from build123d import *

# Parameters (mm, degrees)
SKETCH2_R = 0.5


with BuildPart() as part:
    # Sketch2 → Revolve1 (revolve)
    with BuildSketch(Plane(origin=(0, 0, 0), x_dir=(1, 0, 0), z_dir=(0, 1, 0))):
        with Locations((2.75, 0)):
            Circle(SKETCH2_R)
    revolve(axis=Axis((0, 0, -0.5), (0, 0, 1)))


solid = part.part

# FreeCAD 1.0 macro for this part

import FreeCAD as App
import Part
import Sketcher

V = App.Vector

doc = App.newDocument("Part")
params = doc.addObject("Spreadsheet::Sheet", "Params")
for row, (alias, value) in enumerate([
    ("sketch1_diameter", "1 mm"),
    ("revolution_angle", "360 deg"),
], start=1):
    params.set(f"A{row}", alias)
    params.set(f"B{row}", "=" + value)
    params.setAlias(f"B{row}", alias)

body = doc.addObject("PartDesign::Body", "Body")

# Sketch on XZ plane
sketch1 = body.newObject("Sketcher::SketchObject", "Sketch")
sketch1.AttachmentSupport = (doc.getObject("XZ_Plane"), [""])
sketch1.MapMode = "FlatFace"
sketch1.addGeometry(Part.Circle(V(2.8, 0, 0), V(0, 0, 1), 0.5), False)
sketch1.addConstraint([
    Sketcher.Constraint("PointOnObject", 0, 3, -1),
    Sketcher.Constraint("Diameter", 0, 1.0),
    Sketcher.Constraint("DistanceX", -1, 1, 0, 3, 2.75),
])
sketch1.setExpression("Constraints[1]", "Params.sketch1_diameter")
revolution = body.newObject("PartDesign::Revolution", "Revolution")
revolution.Profile = sketch1
revolution.ReferenceAxis = (sketch1, ["V_Axis"])
revolution.setExpression("Angle", "Params.revolution_angle")

doc.recompute()
